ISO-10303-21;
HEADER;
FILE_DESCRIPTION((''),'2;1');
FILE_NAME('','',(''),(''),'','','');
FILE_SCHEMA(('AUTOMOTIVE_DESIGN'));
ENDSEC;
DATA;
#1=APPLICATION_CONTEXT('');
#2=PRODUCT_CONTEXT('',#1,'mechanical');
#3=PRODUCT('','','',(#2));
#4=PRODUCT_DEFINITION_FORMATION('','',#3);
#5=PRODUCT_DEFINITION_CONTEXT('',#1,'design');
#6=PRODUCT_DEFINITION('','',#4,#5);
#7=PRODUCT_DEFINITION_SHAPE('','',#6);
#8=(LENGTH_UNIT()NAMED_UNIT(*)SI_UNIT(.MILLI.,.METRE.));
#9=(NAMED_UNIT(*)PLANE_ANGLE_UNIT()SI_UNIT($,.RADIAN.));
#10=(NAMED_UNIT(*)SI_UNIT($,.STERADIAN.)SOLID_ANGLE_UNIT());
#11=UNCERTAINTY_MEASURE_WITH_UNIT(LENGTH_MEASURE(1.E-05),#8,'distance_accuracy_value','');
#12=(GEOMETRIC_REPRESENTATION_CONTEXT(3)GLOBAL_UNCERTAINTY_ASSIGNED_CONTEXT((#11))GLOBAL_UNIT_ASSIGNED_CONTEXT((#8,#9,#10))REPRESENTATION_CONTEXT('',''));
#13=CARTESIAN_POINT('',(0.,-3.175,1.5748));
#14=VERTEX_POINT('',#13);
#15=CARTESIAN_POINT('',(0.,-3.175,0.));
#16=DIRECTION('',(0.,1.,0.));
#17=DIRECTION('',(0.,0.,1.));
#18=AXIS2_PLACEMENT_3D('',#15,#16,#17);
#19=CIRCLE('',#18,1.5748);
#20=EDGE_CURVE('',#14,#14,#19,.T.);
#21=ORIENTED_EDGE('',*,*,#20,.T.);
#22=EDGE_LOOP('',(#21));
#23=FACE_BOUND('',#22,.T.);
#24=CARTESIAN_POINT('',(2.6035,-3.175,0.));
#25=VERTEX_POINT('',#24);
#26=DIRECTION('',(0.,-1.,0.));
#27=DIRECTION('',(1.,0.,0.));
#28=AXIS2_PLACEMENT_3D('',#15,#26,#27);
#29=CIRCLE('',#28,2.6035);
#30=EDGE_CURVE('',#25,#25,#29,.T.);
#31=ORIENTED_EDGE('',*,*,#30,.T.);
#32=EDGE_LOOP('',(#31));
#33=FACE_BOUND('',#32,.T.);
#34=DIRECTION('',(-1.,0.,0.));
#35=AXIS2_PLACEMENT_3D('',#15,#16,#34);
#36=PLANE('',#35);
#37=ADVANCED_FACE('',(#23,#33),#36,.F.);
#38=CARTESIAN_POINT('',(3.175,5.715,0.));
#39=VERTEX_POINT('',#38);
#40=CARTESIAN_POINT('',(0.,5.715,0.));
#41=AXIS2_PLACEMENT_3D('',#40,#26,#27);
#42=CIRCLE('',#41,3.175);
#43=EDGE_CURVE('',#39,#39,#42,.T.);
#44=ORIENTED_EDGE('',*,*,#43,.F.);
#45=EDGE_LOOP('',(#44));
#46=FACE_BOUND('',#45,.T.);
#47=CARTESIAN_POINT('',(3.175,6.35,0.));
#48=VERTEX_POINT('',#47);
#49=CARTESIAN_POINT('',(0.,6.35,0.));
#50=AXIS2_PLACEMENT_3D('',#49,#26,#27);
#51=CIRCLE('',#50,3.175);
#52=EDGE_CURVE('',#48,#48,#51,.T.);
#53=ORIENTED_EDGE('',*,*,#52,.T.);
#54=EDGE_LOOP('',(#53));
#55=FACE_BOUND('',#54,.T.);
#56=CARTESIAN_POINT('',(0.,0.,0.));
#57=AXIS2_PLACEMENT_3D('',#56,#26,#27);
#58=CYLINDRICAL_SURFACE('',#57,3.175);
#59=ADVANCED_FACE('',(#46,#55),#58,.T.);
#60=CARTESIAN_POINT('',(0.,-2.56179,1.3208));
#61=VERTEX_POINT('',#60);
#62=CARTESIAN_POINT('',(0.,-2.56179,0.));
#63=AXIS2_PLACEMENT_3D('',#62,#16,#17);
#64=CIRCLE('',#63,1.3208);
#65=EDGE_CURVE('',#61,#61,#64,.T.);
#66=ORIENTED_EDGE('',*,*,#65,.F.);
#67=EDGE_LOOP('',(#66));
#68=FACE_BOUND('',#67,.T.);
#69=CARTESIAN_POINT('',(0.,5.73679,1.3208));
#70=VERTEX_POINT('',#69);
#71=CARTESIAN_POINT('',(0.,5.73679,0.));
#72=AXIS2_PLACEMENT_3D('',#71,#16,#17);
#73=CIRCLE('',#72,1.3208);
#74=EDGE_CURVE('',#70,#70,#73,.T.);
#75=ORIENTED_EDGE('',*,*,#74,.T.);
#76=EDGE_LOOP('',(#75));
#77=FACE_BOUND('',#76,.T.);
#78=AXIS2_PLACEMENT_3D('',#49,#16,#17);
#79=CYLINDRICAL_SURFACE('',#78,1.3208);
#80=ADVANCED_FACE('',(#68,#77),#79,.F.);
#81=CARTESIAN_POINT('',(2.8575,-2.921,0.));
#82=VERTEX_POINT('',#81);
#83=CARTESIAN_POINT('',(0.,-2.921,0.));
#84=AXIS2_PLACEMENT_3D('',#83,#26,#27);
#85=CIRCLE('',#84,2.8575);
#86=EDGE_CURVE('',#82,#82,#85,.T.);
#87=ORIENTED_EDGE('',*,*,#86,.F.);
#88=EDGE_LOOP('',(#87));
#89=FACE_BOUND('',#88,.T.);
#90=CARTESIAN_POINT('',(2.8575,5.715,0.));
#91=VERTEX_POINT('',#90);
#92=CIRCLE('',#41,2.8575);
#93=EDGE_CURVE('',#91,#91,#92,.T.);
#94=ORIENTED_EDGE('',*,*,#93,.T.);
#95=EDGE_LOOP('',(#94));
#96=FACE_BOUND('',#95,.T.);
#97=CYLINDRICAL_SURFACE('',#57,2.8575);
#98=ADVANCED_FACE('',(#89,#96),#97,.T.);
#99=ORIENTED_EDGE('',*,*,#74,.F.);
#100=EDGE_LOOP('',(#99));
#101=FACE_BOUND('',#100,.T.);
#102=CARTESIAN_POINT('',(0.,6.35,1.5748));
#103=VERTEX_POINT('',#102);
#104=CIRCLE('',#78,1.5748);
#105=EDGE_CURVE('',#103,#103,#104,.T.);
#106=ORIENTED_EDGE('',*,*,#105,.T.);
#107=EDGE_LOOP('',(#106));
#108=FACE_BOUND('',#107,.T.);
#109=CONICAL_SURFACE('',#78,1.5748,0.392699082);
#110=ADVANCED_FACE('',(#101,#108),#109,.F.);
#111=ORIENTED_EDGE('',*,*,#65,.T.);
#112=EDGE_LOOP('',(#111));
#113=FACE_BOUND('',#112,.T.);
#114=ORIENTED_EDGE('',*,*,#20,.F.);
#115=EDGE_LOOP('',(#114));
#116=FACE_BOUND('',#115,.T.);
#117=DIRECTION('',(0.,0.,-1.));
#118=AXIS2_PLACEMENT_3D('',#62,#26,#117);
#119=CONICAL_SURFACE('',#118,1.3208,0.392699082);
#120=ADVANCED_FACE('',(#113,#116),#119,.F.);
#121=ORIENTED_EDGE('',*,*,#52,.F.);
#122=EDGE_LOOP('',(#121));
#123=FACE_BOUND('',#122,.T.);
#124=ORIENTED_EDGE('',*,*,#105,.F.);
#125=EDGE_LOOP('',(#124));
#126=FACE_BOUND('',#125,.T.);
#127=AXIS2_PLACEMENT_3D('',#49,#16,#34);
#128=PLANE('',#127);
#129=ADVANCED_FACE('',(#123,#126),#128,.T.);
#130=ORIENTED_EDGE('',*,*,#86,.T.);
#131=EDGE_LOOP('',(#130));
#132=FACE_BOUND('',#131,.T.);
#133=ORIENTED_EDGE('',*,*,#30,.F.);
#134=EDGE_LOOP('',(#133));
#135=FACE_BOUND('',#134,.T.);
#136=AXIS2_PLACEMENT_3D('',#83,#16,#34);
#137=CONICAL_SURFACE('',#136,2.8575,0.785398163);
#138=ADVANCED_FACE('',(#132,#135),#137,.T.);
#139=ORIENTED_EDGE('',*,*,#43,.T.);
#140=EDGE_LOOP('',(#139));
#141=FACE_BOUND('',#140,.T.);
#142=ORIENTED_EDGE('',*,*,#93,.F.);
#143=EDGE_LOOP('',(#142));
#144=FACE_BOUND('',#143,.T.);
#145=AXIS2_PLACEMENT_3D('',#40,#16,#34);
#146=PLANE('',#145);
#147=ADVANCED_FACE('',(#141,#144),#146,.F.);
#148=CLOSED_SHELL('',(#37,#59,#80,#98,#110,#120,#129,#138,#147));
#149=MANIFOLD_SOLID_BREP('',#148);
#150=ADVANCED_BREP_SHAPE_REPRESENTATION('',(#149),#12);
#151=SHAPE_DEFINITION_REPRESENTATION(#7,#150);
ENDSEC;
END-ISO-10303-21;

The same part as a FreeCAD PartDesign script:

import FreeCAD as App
import Part
import Sketcher
Q = App.Units.Quantity

doc = App.newDocument("Part")
body = doc.addObject("PartDesign::Body", "Body")

sketch1 = doc.addObject("Sketcher::SketchObject", "Sketch")
body.addObject(sketch1)
sketch1.AttachmentSupport = (doc.XY_Plane, [""])
sketch1.MapMode = "FlatFace"
sketch1.addGeometry(Part.LineSegment(App.Vector(0, -3.17, 0), App.Vector(0, 6.35, 0)), False)
sketch1.addGeometry(Part.LineSegment(App.Vector(0, 6.35, 0), App.Vector(-3.17, 6.35, 0)), False)
sketch1.addGeometry(Part.LineSegment(App.Vector(-3.17, 6.35, 0), App.Vector(-3.17, 5.71, 0)), False)
sketch1.addGeometry(Part.LineSegment(App.Vector(-3.17, 5.71, 0), App.Vector(-2.86, 5.71, 0)), False)
sketch1.addGeometry(Part.LineSegment(App.Vector(-2.86, 5.71, 0), App.Vector(-2.86, -2.92, 0)), False)
sketch1.addGeometry(Part.LineSegment(App.Vector(-2.86, -2.92, 0), App.Vector(-2.6, -3.17, 0)), False)
sketch1.addGeometry(Part.LineSegment(App.Vector(-2.6, -3.17, 0), App.Vector(0, -3.17, 0)), False)
sketch1.addConstraint(Sketcher.Constraint("Coincident", 0, 2, 1, 1))
sketch1.addConstraint(Sketcher.Constraint("Coincident", 1, 2, 2, 1))
sketch1.addConstraint(Sketcher.Constraint("Coincident", 2, 2, 3, 1))
sketch1.addConstraint(Sketcher.Constraint("Coincident", 3, 2, 4, 1))
sketch1.addConstraint(Sketcher.Constraint("Coincident", 4, 2, 5, 1))
sketch1.addConstraint(Sketcher.Constraint("Coincident", 5, 2, 6, 1))
sketch1.addConstraint(Sketcher.Constraint("Coincident", 6, 2, 0, 1))
sketch1.addConstraint(Sketcher.Constraint("Vertical", 0))
sketch1.addConstraint(Sketcher.Constraint("Horizontal", 1))
sketch1.addConstraint(Sketcher.Constraint("Vertical", 2))
sketch1.addConstraint(Sketcher.Constraint("Horizontal", 3))
sketch1.addConstraint(Sketcher.Constraint("Vertical", 4))
sketch1.addConstraint(Sketcher.Constraint("Horizontal", 6))
sketch1.addConstraint(Sketcher.Constraint("PointOnObject", 0, 2, -2))
sketch1.addConstraint(Sketcher.Constraint("Angle", 5, Q("-45 deg")))
sketch1.addConstraint(Sketcher.Constraint("DistanceY", 4, 2, 4, 1, Q("0.34 in")))
sketch1.addConstraint(Sketcher.Constraint("DistanceX", 1, 2, 1, 1, Q("0.125 in")))
sketch1.addConstraint(Sketcher.Constraint("DistanceY", 0, 1, 0, 2, Q("0.375 in")))
sketch1.addConstraint(Sketcher.Constraint("DistanceY", 2, 2, 2, 1, Q("0.025 in")))
sketch1.addConstraint(Sketcher.Constraint("DistanceY", -1, 1, 0, 2, Q("0.25 in")))
sketch1.addConstraint(Sketcher.Constraint("DistanceX", 3, 1, 3, 2, Q("0.0125 in")))
revolution = doc.addObject("PartDesign::Revolution", "Revolution")
body.addObject(revolution)
revolution.Profile = sketch1
revolution.ReferenceAxis = (sketch1, ["V_Axis"])
revolution.Angle = 360

sketch2 = doc.addObject("Sketcher::SketchObject", "Sketch001")
body.addObject(sketch2)
sketch2.AttachmentSupport = (doc.YZ_Plane, [""])
sketch2.MapMode = "FlatFace"
sketch2.addGeometry(Part.LineSegment(App.Vector(-3.2, 0, 0), App.Vector(6.3, 0, 0)), False)
sketch2.addGeometry(Part.LineSegment(App.Vector(6.3, 0, 0), App.Vector(6.3, 1.6, 0)), False)
sketch2.addGeometry(Part.LineSegment(App.Vector(6.3, 1.6, 0), App.Vector(5.7, 1.3, 0)), False)
sketch2.addGeometry(Part.LineSegment(App.Vector(5.7, 1.3, 0), App.Vector(-2.6, 1.3, 0)), False)
sketch2.addGeometry(Part.LineSegment(App.Vector(-2.6, 1.3, 0), App.Vector(-3.2, 1.6, 0)), False)
sketch2.addGeometry(Part.LineSegment(App.Vector(-3.2, 1.6, 0), App.Vector(-3.2, 0, 0)), False)
sketch2.addConstraint(Sketcher.Constraint("Coincident", 0, 2, 1, 1))
sketch2.addConstraint(Sketcher.Constraint("Coincident", 1, 2, 2, 1))
sketch2.addConstraint(Sketcher.Constraint("Coincident", 2, 2, 3, 1))
sketch2.addConstraint(Sketcher.Constraint("Coincident", 3, 2, 4, 1))
sketch2.addConstraint(Sketcher.Constraint("Coincident", 4, 2, 5, 1))
sketch2.addConstraint(Sketcher.Constraint("Coincident", 5, 2, 0, 1))
sketch2.addConstraint(Sketcher.Constraint("Horizontal", 0))
sketch2.addConstraint(Sketcher.Constraint("Vertical", 1))
sketch2.addConstraint(Sketcher.Constraint("Horizontal", 3))
sketch2.addConstraint(Sketcher.Constraint("Vertical", 5))
sketch2.addConstraint(Sketcher.Constraint("PointOnObject", 0, 2, -1))
sketch2.addConstraint(Sketcher.Constraint("Horizontal", 1, 2, 4, 2))
sketch2.addConstraint(Sketcher.Constraint("Equal", 2, 4))
sketch2.addConstraint(Sketcher.Constraint("Angle", 2, Q("-157.5 deg")))
sketch2.addConstraint(Sketcher.Constraint("DistanceX", 0, 1, 0, 2, Q("0.375 in")))
sketch2.addConstraint(Sketcher.Constraint("DistanceY", 1, 1, 1, 2, Q("0.062 in")))
sketch2.addConstraint(Sketcher.Constraint("DistanceX", -1, 1, 0, 2, Q("0.25 in")))
sketch2.addConstraint(Sketcher.Constraint("DistanceY", 2, 2, 1, 2, Q("0.01 in")))
groove = doc.addObject("PartDesign::Groove", "Groove")
body.addObject(groove)
groove.Profile = sketch2
groove.ReferenceAxis = (sketch2, ["H_Axis"])
groove.Angle = 360

doc.recompute()
